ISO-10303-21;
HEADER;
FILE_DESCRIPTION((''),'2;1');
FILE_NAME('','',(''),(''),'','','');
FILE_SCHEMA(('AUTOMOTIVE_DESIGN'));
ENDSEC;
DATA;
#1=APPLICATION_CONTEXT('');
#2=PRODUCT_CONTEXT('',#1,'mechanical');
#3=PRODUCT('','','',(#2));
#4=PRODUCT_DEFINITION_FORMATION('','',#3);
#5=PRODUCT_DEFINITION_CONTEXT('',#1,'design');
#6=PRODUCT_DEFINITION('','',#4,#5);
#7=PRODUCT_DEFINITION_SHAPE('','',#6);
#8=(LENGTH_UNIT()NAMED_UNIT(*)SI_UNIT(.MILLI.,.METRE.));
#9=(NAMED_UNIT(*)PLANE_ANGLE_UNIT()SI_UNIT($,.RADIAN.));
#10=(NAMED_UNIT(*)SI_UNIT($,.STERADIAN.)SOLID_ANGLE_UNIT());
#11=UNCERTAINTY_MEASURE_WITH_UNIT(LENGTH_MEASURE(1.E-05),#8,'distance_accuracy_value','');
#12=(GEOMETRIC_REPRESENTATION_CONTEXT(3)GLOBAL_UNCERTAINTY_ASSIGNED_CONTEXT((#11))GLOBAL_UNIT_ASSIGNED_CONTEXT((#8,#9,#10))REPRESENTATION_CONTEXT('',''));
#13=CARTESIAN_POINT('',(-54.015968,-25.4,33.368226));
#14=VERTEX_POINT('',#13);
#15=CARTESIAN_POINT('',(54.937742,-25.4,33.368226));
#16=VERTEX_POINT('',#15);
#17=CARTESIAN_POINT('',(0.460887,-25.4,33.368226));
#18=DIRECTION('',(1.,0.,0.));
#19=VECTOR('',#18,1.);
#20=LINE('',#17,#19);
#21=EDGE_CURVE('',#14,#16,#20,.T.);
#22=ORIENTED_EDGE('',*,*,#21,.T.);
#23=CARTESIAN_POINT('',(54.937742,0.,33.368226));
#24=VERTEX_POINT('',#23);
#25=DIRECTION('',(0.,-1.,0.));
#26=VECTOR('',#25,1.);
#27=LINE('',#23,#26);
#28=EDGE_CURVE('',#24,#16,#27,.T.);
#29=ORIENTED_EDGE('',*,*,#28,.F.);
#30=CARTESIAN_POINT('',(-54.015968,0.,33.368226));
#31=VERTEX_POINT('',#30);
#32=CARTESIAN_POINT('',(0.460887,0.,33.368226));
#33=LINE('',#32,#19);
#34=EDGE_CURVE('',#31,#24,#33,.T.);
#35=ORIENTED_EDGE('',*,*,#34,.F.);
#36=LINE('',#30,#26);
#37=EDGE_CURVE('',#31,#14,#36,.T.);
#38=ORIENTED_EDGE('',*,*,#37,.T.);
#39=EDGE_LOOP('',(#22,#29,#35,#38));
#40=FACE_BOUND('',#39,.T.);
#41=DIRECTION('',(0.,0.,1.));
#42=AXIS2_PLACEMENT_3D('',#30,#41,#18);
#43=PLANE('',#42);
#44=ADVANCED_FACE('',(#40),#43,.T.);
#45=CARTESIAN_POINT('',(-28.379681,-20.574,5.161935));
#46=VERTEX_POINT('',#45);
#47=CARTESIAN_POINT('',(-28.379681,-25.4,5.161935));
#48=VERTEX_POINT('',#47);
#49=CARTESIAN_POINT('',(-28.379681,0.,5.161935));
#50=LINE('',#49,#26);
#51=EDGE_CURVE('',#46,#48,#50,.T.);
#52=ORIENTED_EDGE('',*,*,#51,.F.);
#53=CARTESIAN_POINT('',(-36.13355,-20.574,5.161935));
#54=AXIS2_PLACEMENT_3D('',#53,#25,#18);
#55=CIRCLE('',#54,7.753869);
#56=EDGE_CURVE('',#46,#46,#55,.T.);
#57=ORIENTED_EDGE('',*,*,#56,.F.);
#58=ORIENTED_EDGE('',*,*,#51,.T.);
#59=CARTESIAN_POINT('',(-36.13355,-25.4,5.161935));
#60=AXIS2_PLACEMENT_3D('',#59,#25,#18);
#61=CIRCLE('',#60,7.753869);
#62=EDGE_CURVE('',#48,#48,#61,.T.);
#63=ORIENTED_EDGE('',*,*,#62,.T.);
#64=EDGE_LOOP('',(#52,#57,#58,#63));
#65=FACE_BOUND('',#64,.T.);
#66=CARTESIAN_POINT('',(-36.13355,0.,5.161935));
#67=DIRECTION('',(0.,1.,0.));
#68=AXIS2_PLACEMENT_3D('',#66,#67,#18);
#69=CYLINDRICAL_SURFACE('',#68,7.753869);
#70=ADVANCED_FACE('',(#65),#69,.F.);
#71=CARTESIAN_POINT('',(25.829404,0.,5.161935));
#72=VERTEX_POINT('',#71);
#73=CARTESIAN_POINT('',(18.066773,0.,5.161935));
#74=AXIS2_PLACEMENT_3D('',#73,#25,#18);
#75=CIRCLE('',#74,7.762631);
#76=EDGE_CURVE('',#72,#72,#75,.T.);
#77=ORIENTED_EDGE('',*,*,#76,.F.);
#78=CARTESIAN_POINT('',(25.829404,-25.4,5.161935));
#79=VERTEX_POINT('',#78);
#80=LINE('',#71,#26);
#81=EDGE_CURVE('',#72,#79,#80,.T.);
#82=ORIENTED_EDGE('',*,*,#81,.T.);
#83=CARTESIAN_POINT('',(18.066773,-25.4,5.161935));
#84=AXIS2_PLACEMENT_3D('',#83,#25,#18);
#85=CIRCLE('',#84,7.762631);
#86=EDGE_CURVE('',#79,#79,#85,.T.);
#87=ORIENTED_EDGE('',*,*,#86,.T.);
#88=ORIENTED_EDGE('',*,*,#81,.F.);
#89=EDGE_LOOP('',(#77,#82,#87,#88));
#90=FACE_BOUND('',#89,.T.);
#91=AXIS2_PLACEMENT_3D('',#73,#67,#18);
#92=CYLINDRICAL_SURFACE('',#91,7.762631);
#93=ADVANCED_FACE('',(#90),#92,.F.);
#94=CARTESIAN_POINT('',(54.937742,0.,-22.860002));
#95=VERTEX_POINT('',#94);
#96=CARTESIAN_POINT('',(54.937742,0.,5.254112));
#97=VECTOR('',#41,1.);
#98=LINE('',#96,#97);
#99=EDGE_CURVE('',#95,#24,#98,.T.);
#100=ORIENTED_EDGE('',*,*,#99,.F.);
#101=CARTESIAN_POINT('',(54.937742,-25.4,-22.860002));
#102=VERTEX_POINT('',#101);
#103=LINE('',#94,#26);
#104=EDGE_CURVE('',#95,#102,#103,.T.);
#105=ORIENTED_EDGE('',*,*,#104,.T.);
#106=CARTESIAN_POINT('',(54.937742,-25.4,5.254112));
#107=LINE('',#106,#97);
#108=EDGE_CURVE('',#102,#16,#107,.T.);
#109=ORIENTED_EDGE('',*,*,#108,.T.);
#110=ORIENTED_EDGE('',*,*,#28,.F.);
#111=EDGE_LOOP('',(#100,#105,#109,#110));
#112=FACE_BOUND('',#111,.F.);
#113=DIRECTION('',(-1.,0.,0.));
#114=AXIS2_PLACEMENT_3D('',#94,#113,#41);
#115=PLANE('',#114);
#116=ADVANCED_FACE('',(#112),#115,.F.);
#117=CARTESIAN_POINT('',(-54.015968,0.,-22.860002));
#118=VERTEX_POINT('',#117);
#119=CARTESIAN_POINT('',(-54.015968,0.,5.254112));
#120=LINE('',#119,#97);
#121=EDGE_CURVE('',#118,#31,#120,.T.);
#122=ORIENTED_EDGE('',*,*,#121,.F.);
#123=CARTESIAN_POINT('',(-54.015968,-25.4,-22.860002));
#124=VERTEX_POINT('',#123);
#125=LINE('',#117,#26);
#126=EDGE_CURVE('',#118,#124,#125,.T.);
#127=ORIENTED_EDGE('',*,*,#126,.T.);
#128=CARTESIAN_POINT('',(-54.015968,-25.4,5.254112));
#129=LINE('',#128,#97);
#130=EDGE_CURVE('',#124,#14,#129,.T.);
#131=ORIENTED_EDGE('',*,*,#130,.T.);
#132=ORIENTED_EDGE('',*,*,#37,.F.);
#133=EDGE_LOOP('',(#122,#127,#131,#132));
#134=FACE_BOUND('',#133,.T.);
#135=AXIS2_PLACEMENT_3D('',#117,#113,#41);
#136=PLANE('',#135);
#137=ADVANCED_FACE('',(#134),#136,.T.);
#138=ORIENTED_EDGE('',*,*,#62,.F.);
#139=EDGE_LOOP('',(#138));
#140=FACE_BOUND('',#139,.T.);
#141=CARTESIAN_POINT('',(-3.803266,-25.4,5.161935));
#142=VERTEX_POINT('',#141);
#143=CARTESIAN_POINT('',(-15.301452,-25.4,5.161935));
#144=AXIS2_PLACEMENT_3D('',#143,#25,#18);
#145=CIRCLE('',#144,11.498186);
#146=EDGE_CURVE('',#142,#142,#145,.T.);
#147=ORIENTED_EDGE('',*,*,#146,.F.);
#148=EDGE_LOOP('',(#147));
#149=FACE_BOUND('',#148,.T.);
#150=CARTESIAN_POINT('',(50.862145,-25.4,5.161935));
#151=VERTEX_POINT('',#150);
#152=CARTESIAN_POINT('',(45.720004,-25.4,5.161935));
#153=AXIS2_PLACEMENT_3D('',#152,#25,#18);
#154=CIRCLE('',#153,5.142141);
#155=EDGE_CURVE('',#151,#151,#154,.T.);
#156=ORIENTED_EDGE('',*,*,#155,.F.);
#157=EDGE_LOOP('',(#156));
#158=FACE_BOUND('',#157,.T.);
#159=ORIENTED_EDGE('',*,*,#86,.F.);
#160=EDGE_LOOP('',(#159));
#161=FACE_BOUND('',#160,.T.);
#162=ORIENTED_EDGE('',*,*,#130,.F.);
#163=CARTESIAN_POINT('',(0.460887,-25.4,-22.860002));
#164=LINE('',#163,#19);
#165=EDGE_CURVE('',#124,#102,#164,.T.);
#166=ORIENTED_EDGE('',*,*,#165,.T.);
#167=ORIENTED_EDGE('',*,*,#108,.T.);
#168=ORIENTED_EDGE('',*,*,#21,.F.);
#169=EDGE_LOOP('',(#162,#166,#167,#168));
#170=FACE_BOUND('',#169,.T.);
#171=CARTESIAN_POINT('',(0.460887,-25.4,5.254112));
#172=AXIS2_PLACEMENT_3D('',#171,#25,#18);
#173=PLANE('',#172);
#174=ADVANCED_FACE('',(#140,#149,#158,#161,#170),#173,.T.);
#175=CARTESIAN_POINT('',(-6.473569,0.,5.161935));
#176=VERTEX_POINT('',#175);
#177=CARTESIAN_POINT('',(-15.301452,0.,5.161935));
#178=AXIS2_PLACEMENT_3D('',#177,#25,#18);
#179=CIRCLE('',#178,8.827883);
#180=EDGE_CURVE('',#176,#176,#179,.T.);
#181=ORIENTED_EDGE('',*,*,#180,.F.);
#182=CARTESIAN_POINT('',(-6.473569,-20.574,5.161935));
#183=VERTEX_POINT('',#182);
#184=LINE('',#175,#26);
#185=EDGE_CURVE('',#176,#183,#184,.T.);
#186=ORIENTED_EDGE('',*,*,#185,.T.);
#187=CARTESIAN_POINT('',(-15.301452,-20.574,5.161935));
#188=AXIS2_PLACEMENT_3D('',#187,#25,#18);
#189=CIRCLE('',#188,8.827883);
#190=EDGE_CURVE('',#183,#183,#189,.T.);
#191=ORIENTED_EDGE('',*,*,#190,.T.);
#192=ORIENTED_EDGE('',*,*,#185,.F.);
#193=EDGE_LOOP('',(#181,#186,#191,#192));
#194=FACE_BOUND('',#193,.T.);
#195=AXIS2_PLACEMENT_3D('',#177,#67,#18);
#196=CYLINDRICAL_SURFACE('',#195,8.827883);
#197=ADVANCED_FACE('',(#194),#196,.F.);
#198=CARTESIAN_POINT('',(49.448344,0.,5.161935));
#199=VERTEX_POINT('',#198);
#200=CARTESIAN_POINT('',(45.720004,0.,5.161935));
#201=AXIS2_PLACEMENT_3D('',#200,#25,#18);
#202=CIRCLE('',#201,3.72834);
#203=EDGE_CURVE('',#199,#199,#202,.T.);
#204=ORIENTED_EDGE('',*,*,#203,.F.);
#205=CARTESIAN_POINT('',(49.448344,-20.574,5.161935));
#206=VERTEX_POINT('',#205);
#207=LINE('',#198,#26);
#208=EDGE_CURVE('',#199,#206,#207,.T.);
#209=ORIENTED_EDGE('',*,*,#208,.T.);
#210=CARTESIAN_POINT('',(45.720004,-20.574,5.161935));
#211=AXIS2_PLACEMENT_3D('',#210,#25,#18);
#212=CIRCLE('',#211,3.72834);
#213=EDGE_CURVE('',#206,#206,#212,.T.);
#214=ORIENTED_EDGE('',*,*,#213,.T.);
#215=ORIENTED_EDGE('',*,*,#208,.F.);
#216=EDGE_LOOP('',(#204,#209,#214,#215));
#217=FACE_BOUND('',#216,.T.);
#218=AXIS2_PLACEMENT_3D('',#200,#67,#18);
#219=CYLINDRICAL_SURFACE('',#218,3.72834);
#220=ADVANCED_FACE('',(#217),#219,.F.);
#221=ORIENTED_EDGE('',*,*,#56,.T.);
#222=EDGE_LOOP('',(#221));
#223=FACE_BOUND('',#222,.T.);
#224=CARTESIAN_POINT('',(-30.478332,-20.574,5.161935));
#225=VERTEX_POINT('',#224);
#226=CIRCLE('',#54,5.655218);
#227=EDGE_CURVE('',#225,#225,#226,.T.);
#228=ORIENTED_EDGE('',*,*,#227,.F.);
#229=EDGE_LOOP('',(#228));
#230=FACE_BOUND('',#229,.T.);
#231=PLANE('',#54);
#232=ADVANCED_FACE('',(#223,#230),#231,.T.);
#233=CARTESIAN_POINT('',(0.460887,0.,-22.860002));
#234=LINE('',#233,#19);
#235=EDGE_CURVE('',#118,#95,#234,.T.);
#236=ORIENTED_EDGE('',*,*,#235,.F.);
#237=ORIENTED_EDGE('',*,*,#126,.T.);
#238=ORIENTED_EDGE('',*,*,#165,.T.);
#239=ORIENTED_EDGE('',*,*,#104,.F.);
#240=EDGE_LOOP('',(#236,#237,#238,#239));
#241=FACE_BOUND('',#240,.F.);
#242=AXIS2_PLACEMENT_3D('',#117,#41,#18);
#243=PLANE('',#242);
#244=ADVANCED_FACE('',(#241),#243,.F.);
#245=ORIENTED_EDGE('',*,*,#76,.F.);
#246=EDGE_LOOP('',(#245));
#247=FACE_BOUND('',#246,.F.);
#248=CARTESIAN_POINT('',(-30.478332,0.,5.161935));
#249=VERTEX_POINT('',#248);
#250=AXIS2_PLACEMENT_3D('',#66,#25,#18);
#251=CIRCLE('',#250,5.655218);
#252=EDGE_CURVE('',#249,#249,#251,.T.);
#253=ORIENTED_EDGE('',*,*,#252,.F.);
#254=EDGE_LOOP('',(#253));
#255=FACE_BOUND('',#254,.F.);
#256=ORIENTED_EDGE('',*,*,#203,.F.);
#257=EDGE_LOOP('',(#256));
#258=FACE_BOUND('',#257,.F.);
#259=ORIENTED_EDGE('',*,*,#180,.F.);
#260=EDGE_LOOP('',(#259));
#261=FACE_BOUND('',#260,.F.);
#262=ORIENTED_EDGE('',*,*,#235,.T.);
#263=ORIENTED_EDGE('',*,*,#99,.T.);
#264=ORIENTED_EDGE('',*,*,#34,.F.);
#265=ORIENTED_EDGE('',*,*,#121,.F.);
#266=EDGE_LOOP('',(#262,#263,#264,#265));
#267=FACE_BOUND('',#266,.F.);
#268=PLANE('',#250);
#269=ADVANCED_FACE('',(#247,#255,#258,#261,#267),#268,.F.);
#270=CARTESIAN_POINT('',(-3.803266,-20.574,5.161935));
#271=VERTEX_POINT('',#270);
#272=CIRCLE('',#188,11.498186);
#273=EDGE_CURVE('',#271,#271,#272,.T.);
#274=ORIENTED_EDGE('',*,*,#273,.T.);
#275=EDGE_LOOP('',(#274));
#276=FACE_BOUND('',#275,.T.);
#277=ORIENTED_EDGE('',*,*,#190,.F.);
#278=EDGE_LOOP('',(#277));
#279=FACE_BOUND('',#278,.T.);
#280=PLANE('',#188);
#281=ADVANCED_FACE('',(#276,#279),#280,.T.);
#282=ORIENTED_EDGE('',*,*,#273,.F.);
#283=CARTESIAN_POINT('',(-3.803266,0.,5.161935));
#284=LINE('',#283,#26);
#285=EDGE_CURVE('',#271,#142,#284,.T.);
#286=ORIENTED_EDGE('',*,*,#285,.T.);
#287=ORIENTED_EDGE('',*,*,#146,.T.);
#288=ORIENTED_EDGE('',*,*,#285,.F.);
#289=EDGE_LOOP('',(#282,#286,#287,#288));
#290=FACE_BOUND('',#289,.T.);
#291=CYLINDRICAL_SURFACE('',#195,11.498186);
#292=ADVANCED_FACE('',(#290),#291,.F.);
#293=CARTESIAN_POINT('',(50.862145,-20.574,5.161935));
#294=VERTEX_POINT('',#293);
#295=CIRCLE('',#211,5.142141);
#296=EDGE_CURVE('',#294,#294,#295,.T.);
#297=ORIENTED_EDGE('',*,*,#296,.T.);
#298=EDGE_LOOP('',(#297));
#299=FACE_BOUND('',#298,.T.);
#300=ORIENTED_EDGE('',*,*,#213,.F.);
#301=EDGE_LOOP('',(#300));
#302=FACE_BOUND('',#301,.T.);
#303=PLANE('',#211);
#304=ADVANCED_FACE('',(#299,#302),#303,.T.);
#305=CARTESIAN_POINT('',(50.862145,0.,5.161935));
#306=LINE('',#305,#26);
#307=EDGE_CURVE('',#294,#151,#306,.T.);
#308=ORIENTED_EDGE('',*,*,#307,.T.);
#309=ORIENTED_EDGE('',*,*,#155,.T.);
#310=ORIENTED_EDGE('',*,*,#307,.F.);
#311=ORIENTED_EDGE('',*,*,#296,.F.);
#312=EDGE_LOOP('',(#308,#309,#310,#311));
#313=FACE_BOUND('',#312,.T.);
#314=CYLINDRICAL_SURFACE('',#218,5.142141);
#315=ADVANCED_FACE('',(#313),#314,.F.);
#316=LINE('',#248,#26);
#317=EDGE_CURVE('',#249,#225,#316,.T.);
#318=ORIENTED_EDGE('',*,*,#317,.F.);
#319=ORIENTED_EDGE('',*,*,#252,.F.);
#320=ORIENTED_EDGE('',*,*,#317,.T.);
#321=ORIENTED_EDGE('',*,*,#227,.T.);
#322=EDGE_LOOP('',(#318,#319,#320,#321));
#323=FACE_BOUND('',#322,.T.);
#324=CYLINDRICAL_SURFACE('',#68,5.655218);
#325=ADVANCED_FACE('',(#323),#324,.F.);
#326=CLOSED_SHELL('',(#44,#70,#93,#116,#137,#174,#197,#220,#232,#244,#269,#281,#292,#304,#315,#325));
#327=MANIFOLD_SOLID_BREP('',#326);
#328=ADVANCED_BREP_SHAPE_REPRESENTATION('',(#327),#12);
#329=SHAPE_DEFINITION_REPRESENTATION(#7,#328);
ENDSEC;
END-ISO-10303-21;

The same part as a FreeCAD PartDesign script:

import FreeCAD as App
import Part
import Sketcher
Q = App.Units.Quantity

doc = App.newDocument("Part")
body = doc.addObject("PartDesign::Body", "Body")

sketch1 = body.newObject("Sketcher::SketchObject", "Sketch")
sketch1.AttachmentSupport = (doc.getObject("XZ_Plane"), [""])
sketch1.MapMode = "FlatFace"
sketch1.addGeometry(Part.LineSegment(App.Vector(-54, 33, 0), App.Vector(-54, -23, 0)), False)
sketch1.addGeometry(Part.LineSegment(App.Vector(-54, -23, 0), App.Vector(55, -23, 0)), False)
sketch1.addGeometry(Part.LineSegment(App.Vector(55, -23, 0), App.Vector(55, 33, 0)), False)
sketch1.addGeometry(Part.LineSegment(App.Vector(55, 33, 0), App.Vector(-54, 33, 0)), False)
sketch1.addGeometry(Part.Circle(App.Vector(-36, 5, 0), App.Vector(0, 0, 1), 8), False)
sketch1.addGeometry(Part.Circle(App.Vector(-15, 5, 0), App.Vector(0, 0, 1), 11), False)
sketch1.addGeometry(Part.Circle(App.Vector(18, 5, 0), App.Vector(0, 0, 1), 8), False)
sketch1.addGeometry(Part.Circle(App.Vector(46, 5, 0), App.Vector(0, 0, 1), 5), False)
sketch1.addConstraint(Sketcher.Constraint("Coincident", 0, 2, 1, 1))
sketch1.addConstraint(Sketcher.Constraint("Coincident", 1, 2, 2, 1))
sketch1.addConstraint(Sketcher.Constraint("Coincident", 2, 2, 3, 1))
sketch1.addConstraint(Sketcher.Constraint("Coincident", 3, 2, 0, 1))
sketch1.addConstraint(Sketcher.Constraint("Vertical", 0))
sketch1.addConstraint(Sketcher.Constraint("Horizontal", 1))
sketch1.addConstraint(Sketcher.Constraint("Vertical", 2))
sketch1.addConstraint(Sketcher.Constraint("Horizontal", 3))
sketch1.addConstraint(Sketcher.Constraint("Horizontal", 4, 3, 5, 3))
sketch1.addConstraint(Sketcher.Constraint("Horizontal", 5, 3, 6, 3))
sketch1.addConstraint(Sketcher.Constraint("Horizontal", 6, 3, 7, 3))
sketch1.addConstraint(Sketcher.Constraint("DistanceX", -1, 1, 7, 3, Q("1.8000002 in")))
sketch1.addConstraint(Sketcher.Constraint("DistanceY", 0, 2, -1, 1, Q("0.9000001 in")))
sketch1.addConstraint(Sketcher.Constraint("Diameter", 7, 10.284282))
sketch1.addConstraint(Sketcher.Constraint("Diameter", 4, 15.507738))
sketch1.addConstraint(Sketcher.Constraint("Diameter", 5, 22.996372))
sketch1.addConstraint(Sketcher.Constraint("Diameter", 6, 15.525262))
sketch1.addConstraint(Sketcher.Constraint("DistanceX", 1, 1, 1, 2, 108.953711))
sketch1.addConstraint(Sketcher.Constraint("DistanceX", 4, 3, 5, 3, 20.832098))
sketch1.addConstraint(Sketcher.Constraint("DistanceY", 0, 2, 0, 1, 56.228228))
sketch1.addConstraint(Sketcher.Constraint("DistanceX", 4, 3, -1, 1, 36.13355))
sketch1.addConstraint(Sketcher.Constraint("DistanceX", 0, 2, -1, 1, 54.015968))
sketch1.addConstraint(Sketcher.Constraint("DistanceX", 6, 3, 7, 3, 27.653231))
sketch1.addConstraint(Sketcher.Constraint("DistanceY", 7, 3, 2, 2, 28.206291))
pad1 = body.newObject("PartDesign::Pad", "Pad")
pad1.Profile = sketch1
pad1.Length = Q("1 in")

sketch2 = body.newObject("Sketcher::SketchObject", "Sketch001")
sketch2.AttachmentSupport = (doc.getObject("XZ_Plane"), [""])
sketch2.MapMode = "FlatFace"
sketch2.addGeometry(Part.Circle(App.Vector(-36.1, 5.2, 0), App.Vector(0, 0, 1), 7.8), False)
sketch2.addGeometry(Part.Circle(App.Vector(-36.1, 5.2, 0), App.Vector(0, 0, 1), 5.7), False)
sketch2.addGeometry(Part.Circle(App.Vector(45.7, 5.2, 0), App.Vector(0, 0, 1), 5.1), False)
sketch2.addGeometry(Part.Circle(App.Vector(45.7, 5.2, 0), App.Vector(0, 0, 1), 3.7), False)
sketch2.addGeometry(Part.Circle(App.Vector(-15.3, 5.2, 0), App.Vector(0, 0, 1), 11.5), False)
sketch2.addGeometry(Part.Circle(App.Vector(-15.3, 5.2, 0), App.Vector(0, 0, 1), 8.8), False)
sketch2.addConstraint(Sketcher.Constraint("Coincident", 1, 3, 0, 3))
sketch2.addConstraint(Sketcher.Constraint("Coincident", 3, 3, 2, 3))
sketch2.addConstraint(Sketcher.Constraint("Coincident", 5, 3, 4, 3))
sketch2.addConstraint(Sketcher.Constraint("Horizontal", 1, 3, 2, 3))
sketch2.addConstraint(Sketcher.Constraint("Horizontal", 3, 3, 4, 3))
sketch2.addConstraint(Sketcher.Constraint("DistanceX", -1, 1, 2, 3, Q("1.8000002 in")))
sketch2.addConstraint(Sketcher.Constraint("Diameter", 2, 10.284282))
sketch2.addConstraint(Sketcher.Constraint("Diameter", 3, 7.45668))
sketch2.addConstraint(Sketcher.Constraint("Diameter", 0, 15.507738))
sketch2.addConstraint(Sketcher.Constraint("Diameter", 1, 11.310436))
sketch2.addConstraint(Sketcher.Constraint("Diameter", 4, 22.996372))
sketch2.addConstraint(Sketcher.Constraint("Diameter", 5, 17.655766))
sketch2.addConstraint(Sketcher.Constraint("DistanceX", 0, 3, 4, 3, 20.832098))
sketch2.addConstraint(Sketcher.Constraint("DistanceX", 0, 3, -1, 1, 36.13355))
sketch2.addConstraint(Sketcher.Constraint("DistanceY", -1, 1, 0, 3, 5.161935))
pad2 = body.newObject("PartDesign::Pad", "Pad001")
pad2.Profile = sketch2
pad2.Length = Q("0.81 in")

doc.recompute()
